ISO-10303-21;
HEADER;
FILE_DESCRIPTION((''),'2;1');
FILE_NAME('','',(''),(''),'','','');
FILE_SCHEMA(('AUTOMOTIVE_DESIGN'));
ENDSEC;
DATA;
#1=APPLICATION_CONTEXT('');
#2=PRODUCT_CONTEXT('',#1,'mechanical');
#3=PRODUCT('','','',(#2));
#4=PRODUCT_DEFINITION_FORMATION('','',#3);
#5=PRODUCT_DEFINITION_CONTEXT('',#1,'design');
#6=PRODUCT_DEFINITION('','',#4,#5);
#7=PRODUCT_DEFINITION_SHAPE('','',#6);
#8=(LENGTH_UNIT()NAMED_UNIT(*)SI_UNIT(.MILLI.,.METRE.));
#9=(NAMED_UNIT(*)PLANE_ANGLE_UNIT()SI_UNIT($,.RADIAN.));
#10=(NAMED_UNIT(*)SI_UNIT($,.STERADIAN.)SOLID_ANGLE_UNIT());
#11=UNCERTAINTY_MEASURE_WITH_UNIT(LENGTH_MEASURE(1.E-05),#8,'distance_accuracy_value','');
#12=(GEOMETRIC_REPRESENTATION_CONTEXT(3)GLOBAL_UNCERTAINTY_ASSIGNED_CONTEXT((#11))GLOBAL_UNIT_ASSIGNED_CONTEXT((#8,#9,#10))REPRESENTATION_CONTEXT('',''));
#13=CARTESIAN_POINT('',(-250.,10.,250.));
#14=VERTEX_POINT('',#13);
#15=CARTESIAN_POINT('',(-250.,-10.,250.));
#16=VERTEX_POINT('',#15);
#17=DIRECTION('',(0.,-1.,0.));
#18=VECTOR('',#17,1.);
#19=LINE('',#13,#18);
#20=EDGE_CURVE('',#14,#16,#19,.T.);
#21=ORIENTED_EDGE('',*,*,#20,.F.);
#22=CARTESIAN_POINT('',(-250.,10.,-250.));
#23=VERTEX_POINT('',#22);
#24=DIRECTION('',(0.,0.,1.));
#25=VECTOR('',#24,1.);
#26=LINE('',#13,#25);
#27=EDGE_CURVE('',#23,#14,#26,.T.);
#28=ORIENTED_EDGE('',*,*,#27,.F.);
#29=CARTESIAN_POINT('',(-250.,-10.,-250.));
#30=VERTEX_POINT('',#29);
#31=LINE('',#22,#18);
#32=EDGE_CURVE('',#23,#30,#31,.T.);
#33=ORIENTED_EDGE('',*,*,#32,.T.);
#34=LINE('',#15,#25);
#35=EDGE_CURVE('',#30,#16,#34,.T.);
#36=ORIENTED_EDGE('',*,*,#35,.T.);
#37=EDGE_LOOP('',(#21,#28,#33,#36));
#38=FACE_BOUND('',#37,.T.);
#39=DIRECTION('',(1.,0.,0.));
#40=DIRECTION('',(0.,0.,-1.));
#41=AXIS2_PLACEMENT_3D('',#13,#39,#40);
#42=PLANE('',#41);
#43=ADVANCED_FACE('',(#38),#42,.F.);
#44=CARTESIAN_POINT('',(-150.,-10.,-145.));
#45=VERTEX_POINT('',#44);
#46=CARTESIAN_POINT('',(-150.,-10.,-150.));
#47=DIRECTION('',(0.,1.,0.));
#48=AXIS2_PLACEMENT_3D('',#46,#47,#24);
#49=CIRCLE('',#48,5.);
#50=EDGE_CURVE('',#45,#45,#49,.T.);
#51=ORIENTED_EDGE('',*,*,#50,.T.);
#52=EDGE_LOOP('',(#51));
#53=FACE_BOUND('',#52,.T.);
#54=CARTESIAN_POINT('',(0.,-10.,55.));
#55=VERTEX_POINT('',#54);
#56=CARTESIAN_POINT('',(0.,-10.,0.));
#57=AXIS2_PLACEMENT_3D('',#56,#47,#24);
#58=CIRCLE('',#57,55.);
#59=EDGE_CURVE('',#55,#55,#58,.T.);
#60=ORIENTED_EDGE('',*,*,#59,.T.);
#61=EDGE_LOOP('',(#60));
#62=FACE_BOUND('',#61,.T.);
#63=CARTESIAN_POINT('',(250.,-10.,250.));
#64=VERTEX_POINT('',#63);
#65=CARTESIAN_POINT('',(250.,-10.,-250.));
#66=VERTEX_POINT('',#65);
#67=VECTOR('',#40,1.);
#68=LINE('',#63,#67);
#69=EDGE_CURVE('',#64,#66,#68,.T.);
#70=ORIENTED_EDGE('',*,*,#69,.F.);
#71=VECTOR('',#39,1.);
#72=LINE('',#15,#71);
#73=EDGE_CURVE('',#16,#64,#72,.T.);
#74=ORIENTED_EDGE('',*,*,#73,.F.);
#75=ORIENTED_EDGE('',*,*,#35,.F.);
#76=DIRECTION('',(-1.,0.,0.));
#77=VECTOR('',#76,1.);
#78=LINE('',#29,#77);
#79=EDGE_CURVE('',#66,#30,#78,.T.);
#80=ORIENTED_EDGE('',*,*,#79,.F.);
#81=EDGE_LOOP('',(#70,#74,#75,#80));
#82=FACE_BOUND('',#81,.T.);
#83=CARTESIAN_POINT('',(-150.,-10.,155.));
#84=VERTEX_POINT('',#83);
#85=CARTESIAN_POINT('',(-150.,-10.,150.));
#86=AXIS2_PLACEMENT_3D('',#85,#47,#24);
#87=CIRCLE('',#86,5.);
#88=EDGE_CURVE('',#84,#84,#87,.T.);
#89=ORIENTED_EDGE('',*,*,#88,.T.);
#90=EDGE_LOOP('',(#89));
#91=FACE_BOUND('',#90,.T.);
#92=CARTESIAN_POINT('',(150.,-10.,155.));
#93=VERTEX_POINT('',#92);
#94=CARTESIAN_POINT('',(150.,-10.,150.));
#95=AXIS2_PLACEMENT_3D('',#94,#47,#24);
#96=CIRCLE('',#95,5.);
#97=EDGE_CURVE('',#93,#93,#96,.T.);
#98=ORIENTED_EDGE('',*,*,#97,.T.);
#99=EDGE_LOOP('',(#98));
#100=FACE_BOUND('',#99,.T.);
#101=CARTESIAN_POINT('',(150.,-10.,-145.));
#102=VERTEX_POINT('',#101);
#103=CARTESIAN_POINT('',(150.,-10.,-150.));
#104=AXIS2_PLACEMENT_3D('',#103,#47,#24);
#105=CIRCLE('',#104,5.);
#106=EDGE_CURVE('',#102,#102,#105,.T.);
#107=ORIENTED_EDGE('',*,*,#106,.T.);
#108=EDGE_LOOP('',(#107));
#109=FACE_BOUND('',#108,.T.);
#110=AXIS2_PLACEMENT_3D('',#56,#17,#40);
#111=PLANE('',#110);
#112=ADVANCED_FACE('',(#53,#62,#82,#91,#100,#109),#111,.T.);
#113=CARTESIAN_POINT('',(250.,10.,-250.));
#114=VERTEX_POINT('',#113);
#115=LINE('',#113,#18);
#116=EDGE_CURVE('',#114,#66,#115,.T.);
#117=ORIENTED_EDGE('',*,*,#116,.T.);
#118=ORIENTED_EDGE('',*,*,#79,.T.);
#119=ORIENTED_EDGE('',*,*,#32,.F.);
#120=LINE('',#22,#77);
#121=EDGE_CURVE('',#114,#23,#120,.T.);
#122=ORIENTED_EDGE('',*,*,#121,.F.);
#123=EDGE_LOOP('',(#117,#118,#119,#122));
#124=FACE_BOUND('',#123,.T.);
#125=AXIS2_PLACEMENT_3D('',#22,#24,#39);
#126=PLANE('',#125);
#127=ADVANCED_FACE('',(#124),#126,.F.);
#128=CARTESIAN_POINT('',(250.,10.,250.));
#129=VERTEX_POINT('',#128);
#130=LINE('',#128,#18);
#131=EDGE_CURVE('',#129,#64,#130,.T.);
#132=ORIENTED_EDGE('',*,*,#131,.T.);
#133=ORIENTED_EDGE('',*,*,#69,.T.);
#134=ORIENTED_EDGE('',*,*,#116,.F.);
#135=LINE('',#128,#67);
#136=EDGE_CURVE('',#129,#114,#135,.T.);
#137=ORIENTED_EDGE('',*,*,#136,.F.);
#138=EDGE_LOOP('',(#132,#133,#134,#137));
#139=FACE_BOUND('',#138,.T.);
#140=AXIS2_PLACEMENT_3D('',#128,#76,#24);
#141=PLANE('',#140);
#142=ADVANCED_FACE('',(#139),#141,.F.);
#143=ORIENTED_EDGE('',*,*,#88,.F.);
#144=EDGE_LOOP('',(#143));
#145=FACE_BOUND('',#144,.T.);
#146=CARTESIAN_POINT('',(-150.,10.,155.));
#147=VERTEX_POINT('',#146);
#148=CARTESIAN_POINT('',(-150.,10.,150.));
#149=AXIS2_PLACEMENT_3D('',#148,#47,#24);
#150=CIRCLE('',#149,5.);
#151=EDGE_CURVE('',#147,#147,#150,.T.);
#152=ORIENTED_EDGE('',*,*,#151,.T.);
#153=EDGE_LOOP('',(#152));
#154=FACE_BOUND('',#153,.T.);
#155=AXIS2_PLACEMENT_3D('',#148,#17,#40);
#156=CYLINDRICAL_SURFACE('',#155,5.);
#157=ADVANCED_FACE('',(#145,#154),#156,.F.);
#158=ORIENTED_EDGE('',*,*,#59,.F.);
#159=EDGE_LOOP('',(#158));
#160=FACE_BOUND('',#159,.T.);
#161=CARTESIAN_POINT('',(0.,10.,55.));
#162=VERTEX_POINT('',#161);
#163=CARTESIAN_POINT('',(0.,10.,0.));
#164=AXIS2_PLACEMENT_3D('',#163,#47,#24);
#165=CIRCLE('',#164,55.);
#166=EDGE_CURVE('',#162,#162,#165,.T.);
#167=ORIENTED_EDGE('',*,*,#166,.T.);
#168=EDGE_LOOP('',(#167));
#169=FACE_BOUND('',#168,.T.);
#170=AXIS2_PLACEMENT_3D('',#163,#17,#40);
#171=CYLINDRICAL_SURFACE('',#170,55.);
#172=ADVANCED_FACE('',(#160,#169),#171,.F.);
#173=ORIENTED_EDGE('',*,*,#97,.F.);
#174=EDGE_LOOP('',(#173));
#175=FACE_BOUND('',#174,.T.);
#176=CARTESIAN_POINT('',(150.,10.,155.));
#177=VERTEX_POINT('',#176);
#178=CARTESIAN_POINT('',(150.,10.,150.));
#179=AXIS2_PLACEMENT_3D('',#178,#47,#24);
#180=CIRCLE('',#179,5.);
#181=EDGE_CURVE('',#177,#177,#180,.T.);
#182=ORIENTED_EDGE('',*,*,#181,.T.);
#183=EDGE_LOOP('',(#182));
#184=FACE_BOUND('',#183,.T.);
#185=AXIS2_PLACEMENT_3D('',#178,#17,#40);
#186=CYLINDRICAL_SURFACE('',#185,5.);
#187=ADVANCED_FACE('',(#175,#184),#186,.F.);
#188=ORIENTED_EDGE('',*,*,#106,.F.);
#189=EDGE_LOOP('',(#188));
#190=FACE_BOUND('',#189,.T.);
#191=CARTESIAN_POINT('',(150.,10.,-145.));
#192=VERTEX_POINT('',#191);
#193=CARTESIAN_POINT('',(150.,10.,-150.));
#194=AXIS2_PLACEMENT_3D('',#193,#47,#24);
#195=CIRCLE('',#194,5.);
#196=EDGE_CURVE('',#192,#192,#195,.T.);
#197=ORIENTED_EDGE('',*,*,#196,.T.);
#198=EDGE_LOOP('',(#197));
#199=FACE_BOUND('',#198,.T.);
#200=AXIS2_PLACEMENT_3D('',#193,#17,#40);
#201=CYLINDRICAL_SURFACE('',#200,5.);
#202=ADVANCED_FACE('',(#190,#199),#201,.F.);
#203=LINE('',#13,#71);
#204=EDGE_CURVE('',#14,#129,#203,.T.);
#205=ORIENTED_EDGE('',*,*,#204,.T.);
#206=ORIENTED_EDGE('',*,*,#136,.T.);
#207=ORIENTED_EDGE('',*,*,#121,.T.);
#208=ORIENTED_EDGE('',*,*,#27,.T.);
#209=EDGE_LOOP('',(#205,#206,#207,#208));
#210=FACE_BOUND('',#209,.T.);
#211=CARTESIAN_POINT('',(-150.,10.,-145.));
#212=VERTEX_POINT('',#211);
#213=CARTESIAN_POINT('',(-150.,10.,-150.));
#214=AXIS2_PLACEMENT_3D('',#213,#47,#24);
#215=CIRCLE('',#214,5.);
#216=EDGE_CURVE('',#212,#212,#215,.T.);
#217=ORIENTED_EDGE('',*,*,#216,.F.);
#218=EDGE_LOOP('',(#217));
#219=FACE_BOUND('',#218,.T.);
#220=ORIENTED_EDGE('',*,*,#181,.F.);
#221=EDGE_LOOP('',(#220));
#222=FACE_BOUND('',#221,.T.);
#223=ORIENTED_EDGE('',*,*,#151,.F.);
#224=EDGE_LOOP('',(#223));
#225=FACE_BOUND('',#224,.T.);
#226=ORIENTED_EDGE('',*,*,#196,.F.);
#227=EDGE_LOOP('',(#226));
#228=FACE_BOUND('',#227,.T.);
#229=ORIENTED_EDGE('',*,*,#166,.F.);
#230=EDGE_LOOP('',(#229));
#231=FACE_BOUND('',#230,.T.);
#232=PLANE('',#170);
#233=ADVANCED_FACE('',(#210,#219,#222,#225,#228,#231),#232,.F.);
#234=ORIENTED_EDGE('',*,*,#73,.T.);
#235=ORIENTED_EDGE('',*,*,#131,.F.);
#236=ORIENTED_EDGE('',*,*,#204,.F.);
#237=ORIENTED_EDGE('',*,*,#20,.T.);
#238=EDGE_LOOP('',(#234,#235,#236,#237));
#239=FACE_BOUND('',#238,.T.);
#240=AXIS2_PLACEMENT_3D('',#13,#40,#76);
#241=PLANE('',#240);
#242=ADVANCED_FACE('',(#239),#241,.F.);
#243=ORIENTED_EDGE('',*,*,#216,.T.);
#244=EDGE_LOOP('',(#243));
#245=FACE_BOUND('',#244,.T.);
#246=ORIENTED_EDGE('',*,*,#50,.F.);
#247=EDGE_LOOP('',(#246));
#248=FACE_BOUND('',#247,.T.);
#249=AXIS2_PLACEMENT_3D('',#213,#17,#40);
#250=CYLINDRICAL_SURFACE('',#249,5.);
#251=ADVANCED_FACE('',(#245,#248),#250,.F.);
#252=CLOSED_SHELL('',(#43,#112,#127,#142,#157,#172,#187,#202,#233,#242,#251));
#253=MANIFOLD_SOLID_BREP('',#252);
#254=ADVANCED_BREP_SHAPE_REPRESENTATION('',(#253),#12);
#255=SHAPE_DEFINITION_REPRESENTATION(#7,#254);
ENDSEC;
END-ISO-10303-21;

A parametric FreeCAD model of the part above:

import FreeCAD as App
import Part
import Sketcher

V = App.Vector


def add_polygon(sketch, points):
    """Adds a closed chain of lines whose ends are joined by coincident constraints."""
    first, n = sketch.GeometryCount, len(points)
    for a, b in zip(points, points[1:] + points[:1]):
        sketch.addGeometry(Part.LineSegment(App.Vector(*a, 0), App.Vector(*b, 0)), False)
    for i in range(n):
        sketch.addConstraint(Sketcher.Constraint("Coincident", first + i, 2, first + (i + 1) % n, 1))

doc = App.newDocument("Part")
body = doc.addObject("PartDesign::Body", "Body")

# Sketch on XZ plane
sketch1 = body.newObject("Sketcher::SketchObject", "Sketch")
sketch1.AttachmentSupport = (doc.getObject("XZ_Plane"), [""])
sketch1.MapMode = "FlatFace"
add_polygon(sketch1, [(-250, -250), (-250, 250), (250, 250), (250, -250)])  # lines 0-3
sketch1.addGeometry(Part.Circle(V(-150, 150, 0), V(0, 0, 1), 5), False)  # 4
sketch1.addGeometry(Part.Circle(V(150, 150, 0), V(0, 0, 1), 5), False)  # 5
sketch1.addGeometry(Part.Circle(V(-150, -150, 0), V(0, 0, 1), 5), False)  # 6
sketch1.addGeometry(Part.Circle(V(0, 0, 0), V(0, 0, 1), 55), False)  # 7
sketch1.addGeometry(Part.Circle(V(150, -150, 0), V(0, 0, 1), 5), False)  # 8
sketch1.addConstraint(Sketcher.Constraint("Vertical", 0))
sketch1.addConstraint(Sketcher.Constraint("Horizontal", 1))
sketch1.addConstraint(Sketcher.Constraint("Vertical", 2))
sketch1.addConstraint(Sketcher.Constraint("Horizontal", 3))
sketch1.addConstraint(Sketcher.Constraint("Coincident", 7, 3, -1, 1))
sketch1.addConstraint(Sketcher.Constraint("Equal", 4, 5))
sketch1.addConstraint(Sketcher.Constraint("Equal", 5, 6))
sketch1.addConstraint(Sketcher.Constraint("Equal", 6, 8))
sketch1.addConstraint(Sketcher.Constraint("Symmetric", 5, 3, 6, 3, -1, 1))
sketch1.addConstraint(Sketcher.Constraint("Symmetric", 4, 3, 8, 3, -1, 1))
sketch1.addConstraint(Sketcher.Constraint("Symmetric", 0, 2, 2, 2, -1, 1))
sketch1.addConstraint(Sketcher.Constraint("Symmetric", 4, 3, 5, 3, -2))
sketch1.addConstraint(Sketcher.Constraint("Equal", 3, 0))
sketch1.addConstraint(Sketcher.Constraint("Diameter", 4, 10.0))
sketch1.addConstraint(Sketcher.Constraint("Diameter", 7, 110.0))
sketch1.addConstraint(Sketcher.Constraint("DistanceX", 1, 1, 1, 2, 500.0))
sketch1.addConstraint(Sketcher.Constraint("DistanceX", 4, 3, -1, 1, 150.0))
sketch1.addConstraint(Sketcher.Constraint("DistanceY", -1, 1, 4, 3, 150.0))
pad1 = body.newObject("PartDesign::Pad", "Pad")
pad1.Profile = sketch1
pad1.Length = 20
pad1.Midplane = True

doc.recompute()
